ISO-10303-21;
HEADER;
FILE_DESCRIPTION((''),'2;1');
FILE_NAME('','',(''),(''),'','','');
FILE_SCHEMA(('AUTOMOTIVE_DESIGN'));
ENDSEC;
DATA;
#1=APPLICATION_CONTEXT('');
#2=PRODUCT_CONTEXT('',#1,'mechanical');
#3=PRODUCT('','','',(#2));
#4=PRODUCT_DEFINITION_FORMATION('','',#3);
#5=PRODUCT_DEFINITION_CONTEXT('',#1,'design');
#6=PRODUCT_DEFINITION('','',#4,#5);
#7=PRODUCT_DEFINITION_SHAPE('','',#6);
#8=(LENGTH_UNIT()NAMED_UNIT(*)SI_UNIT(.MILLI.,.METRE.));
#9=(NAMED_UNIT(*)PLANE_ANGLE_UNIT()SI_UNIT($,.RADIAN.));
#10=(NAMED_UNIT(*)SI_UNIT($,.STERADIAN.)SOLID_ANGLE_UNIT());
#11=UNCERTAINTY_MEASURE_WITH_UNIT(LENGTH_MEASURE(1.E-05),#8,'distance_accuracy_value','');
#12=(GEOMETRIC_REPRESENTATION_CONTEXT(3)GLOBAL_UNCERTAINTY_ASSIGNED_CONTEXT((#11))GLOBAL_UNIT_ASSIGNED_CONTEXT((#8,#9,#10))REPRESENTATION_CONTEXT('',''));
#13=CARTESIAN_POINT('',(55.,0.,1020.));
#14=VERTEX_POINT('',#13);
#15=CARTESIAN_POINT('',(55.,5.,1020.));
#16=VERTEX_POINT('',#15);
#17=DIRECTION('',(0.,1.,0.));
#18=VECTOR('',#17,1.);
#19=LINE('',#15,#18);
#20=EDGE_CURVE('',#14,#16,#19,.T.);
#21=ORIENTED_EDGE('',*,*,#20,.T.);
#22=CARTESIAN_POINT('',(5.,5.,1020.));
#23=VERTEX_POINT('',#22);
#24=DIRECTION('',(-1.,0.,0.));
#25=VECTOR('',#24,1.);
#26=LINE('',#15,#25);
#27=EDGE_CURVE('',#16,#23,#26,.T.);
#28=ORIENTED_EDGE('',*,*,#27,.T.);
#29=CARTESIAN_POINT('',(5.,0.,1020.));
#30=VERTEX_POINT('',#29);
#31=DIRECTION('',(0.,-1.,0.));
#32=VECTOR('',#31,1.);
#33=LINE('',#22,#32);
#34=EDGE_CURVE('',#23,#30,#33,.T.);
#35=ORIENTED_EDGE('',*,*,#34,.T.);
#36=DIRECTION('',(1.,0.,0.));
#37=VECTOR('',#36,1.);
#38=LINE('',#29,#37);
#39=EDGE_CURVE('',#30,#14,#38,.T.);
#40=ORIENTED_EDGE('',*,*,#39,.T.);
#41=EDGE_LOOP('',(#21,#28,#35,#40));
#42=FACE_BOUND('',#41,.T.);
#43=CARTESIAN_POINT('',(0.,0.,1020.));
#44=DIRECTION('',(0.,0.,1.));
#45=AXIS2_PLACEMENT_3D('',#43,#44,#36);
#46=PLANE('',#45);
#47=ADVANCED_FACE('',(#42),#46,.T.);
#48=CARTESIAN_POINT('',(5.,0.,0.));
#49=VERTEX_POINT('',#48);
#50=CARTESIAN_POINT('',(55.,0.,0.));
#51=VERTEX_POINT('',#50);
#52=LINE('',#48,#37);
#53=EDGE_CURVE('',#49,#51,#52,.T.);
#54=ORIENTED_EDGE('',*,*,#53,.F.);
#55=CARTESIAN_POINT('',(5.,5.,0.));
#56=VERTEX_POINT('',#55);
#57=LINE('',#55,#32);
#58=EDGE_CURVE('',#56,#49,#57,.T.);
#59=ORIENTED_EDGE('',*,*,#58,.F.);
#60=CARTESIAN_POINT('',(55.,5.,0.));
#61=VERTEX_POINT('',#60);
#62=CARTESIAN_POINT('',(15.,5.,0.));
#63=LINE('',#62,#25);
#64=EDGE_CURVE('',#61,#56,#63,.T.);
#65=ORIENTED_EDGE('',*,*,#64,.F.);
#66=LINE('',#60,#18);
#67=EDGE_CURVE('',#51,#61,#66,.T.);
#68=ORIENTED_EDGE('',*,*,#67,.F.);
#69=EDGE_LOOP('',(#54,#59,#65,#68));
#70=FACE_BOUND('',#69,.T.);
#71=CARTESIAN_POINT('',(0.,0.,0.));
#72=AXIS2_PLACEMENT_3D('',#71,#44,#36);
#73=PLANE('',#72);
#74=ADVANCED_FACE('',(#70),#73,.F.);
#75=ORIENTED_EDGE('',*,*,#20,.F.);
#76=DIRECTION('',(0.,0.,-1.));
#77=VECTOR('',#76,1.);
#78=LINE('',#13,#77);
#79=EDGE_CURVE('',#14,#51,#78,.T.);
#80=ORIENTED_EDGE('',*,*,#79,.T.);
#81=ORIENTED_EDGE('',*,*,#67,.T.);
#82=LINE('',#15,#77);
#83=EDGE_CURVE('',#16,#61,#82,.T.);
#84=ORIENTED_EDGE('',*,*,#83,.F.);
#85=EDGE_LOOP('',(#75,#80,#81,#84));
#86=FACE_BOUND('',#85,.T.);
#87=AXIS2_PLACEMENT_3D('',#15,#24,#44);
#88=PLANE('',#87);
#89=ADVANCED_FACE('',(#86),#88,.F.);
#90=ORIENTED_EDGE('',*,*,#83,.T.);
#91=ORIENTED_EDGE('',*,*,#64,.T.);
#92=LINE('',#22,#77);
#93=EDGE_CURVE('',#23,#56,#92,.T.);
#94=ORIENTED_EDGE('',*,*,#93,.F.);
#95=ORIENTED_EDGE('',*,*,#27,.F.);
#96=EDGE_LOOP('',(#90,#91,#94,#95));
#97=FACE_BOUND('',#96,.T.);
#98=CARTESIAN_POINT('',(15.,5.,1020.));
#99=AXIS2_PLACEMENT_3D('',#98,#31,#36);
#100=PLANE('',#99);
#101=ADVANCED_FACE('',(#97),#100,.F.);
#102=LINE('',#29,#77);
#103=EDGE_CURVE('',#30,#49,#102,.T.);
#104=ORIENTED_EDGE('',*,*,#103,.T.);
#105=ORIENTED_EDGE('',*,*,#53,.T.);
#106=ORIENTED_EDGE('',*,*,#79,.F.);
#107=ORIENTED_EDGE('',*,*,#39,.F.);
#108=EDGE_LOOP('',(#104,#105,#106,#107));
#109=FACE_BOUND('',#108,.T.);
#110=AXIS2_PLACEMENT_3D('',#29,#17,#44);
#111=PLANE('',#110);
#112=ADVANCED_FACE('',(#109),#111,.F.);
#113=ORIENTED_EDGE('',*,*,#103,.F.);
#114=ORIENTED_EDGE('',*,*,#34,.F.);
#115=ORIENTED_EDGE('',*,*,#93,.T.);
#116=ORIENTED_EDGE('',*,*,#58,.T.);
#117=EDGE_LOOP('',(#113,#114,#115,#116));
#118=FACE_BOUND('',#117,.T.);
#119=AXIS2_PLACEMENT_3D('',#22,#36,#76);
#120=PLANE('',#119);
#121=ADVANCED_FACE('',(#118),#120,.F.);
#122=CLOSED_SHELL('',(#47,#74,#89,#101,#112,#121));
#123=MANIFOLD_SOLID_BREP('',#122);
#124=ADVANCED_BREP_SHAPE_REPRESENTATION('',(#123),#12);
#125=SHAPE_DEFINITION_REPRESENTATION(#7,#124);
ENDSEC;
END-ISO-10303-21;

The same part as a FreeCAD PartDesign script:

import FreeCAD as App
import Part
import Sketcher

V = App.Vector
Q = App.Units.Quantity

doc = App.newDocument("Part")
body = doc.addObject("PartDesign::Body", "Body")

# Sketch on XY plane
sketch1 = body.newObject("Sketcher::SketchObject", "Sketch")
sketch1.AttachmentSupport = (doc.getObject("XY_Plane"), [""])
sketch1.MapMode = "FlatFace"
sketch1.addGeometry([
    Part.LineSegment(V(5, 0, 0), V(55, 0, 0)),
    Part.LineSegment(V(55, 0, 0), V(55, 5, 0)),
    Part.LineSegment(V(55, 5, 0), V(5, 5, 0)),
    Part.LineSegment(V(5, 5, 0), V(5, 0, 0)),
], False)
sketch1.addConstraint([
    Sketcher.Constraint("Coincident", 0, 2, 1, 1),
    Sketcher.Constraint("Coincident", 1, 2, 2, 1),
    Sketcher.Constraint("Coincident", 2, 2, 3, 1),
    Sketcher.Constraint("Coincident", 3, 2, 0, 1),
    Sketcher.Constraint("Horizontal", 0),
    Sketcher.Constraint("Vertical", 1),
    Sketcher.Constraint("Horizontal", 2),
    Sketcher.Constraint("Vertical", 3),
    Sketcher.Constraint("PointOnObject", 0, 2, -1),
    Sketcher.Constraint("DistanceX", 0, 1, 0, 2, Q("50 mm")),
    Sketcher.Constraint("DistanceY", 1, 1, 1, 2, Q("5 mm")),
    Sketcher.Constraint("DistanceX", -1, 1, 0, 2, Q("55 mm")),
])
pad1 = body.newObject("PartDesign::Pad", "Pad")
pad1.Profile = sketch1
pad1.Length = 1020

doc.recompute()
